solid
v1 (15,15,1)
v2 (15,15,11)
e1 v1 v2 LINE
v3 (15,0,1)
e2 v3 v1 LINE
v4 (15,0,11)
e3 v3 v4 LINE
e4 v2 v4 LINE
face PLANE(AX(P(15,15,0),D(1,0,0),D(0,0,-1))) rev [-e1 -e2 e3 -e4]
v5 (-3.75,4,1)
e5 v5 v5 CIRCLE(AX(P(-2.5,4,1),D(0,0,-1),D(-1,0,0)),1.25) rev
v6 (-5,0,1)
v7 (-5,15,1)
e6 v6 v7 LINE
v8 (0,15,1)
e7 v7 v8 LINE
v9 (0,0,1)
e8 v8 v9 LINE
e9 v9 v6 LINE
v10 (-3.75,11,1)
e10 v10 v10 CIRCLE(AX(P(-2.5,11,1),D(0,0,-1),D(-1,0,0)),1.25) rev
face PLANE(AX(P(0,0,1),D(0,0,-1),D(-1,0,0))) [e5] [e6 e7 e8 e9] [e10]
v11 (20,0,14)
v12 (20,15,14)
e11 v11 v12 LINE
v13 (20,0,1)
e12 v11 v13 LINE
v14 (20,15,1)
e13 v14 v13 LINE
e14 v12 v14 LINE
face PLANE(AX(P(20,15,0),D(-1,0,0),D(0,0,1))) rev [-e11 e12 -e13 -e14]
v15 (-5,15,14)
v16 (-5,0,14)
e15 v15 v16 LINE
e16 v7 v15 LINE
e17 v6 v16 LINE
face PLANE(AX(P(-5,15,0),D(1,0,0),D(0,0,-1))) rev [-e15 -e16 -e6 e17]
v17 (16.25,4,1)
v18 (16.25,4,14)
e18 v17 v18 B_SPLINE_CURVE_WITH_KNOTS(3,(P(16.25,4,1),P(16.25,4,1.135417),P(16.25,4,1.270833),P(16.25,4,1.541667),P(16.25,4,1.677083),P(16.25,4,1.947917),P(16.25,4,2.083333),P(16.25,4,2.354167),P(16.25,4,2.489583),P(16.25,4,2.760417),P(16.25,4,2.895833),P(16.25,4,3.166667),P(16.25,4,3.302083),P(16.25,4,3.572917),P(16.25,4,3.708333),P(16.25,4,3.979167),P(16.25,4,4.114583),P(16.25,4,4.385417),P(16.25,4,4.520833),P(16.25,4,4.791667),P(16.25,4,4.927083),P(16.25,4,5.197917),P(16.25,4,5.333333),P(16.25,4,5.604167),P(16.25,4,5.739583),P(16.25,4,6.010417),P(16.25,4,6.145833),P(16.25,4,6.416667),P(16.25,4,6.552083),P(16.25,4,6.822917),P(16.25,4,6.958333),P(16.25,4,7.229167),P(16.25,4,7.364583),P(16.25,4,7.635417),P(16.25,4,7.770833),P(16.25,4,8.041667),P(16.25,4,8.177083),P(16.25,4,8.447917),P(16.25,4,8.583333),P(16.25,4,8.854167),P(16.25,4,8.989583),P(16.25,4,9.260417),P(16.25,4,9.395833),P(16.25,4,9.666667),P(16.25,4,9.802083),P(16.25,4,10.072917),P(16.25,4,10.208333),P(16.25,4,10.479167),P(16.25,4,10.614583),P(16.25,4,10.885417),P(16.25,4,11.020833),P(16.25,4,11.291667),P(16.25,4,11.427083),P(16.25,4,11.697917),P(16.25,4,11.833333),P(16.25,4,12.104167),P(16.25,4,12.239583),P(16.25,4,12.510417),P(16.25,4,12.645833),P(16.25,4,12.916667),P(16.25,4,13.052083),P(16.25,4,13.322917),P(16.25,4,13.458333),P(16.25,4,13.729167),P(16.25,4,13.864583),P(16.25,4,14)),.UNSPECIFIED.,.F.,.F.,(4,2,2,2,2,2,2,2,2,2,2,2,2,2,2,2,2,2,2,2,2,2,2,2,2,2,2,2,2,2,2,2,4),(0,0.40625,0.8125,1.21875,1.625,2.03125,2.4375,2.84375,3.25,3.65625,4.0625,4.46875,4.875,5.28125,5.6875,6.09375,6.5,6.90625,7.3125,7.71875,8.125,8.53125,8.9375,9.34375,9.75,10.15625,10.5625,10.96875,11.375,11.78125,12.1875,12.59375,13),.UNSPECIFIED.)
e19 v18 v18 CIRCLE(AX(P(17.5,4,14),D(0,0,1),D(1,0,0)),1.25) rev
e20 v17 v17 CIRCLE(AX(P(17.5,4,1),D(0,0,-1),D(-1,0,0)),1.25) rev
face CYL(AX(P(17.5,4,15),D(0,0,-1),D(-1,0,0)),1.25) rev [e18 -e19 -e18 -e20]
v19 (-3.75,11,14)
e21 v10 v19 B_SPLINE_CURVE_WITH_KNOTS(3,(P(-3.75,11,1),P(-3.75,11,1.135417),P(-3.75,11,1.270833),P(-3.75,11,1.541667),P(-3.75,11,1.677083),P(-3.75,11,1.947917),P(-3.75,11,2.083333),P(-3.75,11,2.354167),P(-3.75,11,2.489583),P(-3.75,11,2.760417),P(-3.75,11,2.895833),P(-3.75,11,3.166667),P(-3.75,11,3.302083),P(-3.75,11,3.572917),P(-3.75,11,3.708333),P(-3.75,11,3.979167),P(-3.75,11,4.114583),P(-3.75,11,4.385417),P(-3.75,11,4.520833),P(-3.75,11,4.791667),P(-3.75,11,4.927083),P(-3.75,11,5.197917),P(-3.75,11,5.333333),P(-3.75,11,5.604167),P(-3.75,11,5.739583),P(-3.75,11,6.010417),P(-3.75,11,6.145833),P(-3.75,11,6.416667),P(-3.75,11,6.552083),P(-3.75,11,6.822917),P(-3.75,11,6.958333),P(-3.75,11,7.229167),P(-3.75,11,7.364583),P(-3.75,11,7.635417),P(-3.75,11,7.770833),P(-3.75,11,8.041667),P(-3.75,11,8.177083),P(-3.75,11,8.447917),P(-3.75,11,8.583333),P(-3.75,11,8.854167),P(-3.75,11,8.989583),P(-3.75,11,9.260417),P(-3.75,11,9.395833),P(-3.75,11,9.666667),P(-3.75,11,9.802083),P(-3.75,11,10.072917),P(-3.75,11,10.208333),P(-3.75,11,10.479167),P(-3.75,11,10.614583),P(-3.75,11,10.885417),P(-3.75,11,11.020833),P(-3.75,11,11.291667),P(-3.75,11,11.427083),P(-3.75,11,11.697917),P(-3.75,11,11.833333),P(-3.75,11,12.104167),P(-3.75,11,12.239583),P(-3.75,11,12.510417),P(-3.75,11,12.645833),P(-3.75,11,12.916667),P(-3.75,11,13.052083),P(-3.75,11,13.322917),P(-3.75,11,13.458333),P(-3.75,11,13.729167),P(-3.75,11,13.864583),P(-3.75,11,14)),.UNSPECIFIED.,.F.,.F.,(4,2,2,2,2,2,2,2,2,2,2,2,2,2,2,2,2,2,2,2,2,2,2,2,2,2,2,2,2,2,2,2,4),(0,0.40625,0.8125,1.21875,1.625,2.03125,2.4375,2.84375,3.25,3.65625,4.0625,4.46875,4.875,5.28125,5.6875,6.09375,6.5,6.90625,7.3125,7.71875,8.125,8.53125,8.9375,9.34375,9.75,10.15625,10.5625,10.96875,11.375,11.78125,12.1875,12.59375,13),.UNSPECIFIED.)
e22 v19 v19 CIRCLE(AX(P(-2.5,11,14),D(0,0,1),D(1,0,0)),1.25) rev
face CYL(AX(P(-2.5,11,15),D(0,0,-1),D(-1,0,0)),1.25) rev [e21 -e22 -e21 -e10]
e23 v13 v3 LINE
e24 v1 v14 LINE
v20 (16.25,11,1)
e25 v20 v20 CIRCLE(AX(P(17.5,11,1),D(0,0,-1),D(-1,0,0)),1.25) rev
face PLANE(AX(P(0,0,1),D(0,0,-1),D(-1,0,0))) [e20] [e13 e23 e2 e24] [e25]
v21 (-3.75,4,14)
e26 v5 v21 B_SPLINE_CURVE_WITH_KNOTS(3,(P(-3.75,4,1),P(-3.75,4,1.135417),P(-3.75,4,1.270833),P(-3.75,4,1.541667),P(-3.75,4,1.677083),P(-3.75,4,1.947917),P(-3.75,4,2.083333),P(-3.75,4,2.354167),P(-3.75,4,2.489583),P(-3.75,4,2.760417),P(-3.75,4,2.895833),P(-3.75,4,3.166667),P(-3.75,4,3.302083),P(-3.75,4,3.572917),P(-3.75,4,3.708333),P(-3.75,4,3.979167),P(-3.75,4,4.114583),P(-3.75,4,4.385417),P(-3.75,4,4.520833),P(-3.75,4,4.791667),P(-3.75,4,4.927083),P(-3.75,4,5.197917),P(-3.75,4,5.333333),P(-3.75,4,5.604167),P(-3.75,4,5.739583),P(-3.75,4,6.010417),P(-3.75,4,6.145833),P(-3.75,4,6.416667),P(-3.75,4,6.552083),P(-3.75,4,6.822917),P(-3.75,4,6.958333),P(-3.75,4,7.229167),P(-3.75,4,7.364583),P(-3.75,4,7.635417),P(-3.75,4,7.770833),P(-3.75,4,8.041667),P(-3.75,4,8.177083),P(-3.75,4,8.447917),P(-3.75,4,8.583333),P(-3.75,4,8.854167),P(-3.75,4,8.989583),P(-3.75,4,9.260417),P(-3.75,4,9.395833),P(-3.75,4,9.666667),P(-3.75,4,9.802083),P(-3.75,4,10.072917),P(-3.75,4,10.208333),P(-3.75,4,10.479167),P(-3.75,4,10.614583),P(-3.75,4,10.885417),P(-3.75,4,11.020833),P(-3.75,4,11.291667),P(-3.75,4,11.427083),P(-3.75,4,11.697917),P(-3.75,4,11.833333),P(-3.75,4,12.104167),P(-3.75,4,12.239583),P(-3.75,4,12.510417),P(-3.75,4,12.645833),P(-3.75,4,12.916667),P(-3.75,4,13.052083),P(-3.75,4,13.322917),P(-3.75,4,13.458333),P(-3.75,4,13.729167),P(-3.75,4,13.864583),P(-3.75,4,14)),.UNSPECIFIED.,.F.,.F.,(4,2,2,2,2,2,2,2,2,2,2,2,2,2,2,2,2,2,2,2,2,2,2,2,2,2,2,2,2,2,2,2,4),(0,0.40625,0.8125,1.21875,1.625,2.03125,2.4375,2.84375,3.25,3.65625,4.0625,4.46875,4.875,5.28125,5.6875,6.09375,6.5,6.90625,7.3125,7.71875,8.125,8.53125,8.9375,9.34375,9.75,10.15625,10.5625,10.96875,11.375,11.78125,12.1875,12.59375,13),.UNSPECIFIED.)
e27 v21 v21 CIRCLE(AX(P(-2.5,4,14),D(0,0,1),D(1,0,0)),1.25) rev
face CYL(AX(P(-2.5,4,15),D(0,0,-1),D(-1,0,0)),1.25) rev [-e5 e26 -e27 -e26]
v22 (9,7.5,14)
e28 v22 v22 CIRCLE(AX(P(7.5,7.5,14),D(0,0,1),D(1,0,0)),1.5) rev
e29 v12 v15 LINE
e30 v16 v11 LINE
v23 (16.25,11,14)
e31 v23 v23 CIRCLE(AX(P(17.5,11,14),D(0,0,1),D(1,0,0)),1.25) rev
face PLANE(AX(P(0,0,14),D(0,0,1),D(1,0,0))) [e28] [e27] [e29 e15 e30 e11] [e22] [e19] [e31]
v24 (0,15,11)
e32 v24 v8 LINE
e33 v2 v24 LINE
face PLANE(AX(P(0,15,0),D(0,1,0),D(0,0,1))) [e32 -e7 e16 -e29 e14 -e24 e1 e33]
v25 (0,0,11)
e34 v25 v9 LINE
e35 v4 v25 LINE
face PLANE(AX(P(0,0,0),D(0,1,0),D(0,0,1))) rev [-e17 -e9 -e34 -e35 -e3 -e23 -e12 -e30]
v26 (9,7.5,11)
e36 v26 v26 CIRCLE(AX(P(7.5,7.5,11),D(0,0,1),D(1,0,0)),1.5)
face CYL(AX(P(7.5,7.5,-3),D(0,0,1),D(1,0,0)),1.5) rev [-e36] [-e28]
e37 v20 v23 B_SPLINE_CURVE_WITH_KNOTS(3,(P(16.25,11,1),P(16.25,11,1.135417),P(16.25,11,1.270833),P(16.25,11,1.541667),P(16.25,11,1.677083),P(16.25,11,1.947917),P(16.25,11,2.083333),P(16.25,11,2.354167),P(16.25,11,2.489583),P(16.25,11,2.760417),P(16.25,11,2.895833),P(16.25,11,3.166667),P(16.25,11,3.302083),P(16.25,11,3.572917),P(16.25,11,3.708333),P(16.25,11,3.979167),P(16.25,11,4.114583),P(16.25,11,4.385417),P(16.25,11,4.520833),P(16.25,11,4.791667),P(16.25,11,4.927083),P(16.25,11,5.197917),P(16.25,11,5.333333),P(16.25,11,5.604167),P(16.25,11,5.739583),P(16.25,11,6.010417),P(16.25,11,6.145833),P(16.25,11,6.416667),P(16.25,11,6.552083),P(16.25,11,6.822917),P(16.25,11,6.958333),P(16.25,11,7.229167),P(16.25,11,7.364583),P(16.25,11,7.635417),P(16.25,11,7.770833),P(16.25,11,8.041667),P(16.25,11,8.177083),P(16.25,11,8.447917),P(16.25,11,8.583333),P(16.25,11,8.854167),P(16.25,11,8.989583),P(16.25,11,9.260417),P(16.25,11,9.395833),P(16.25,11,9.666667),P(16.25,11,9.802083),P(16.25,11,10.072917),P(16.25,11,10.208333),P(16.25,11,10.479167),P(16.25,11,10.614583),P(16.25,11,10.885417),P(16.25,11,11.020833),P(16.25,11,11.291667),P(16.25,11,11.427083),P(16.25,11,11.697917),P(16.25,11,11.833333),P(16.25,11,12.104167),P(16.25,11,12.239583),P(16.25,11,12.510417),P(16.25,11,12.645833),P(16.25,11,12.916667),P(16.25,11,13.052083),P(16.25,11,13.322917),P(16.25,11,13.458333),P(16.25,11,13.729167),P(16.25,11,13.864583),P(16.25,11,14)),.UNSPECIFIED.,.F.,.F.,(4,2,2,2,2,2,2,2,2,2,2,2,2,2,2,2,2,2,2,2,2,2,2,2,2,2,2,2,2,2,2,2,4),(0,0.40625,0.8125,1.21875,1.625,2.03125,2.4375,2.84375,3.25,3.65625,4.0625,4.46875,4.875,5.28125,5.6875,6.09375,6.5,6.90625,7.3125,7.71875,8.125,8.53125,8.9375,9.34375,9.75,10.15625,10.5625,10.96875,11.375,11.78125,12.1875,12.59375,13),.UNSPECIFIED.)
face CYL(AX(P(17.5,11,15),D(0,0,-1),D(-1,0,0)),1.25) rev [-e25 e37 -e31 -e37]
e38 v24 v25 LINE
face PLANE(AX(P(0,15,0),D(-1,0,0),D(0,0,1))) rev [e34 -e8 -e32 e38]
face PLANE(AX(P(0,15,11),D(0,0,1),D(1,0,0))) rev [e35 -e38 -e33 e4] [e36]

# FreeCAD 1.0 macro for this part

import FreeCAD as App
import Part
import Sketcher
from FreeCAD import Vector

doc = App.newDocument("Part")
body = doc.addObject("PartDesign::Body", "Body")

# Sketch on XZ plane
sketch1 = doc.addObject("Sketcher::SketchObject", "Sketch")
body.addObject(sketch1)
sketch1.AttachmentSupport = (doc.XZ_Plane, [""])
sketch1.MapMode = "FlatFace"
sketch1.addGeometry(Part.LineSegment(Vector(0, 0, 0), Vector(-5, 0, 0)), False)
sketch1.addGeometry(Part.LineSegment(Vector(-5, 0, 0), Vector(-5, 15, 0)), False)
sketch1.addGeometry(Part.LineSegment(Vector(-5, 15, 0), Vector(20, 15, 0)), False)
sketch1.addGeometry(Part.LineSegment(Vector(20, 15, 0), Vector(20, 0, 0)), False)
sketch1.addGeometry(Part.LineSegment(Vector(20, 0, 0), Vector(15, 0, 0)), False)
sketch1.addGeometry(Part.LineSegment(Vector(15, 0, 0), Vector(15, 11, 0)), False)
sketch1.addGeometry(Part.LineSegment(Vector(15, 11, 0), Vector(0, 11, 0)), False)
sketch1.addGeometry(Part.LineSegment(Vector(0, 11, 0), Vector(0, 0, 0)), False)
sketch1.addConstraint(Sketcher.Constraint("Coincident", 0, 2, 1, 1))
sketch1.addConstraint(Sketcher.Constraint("Coincident", 1, 2, 2, 1))
sketch1.addConstraint(Sketcher.Constraint("Coincident", 2, 2, 3, 1))
sketch1.addConstraint(Sketcher.Constraint("Coincident", 3, 2, 4, 1))
sketch1.addConstraint(Sketcher.Constraint("Coincident", 4, 2, 5, 1))
sketch1.addConstraint(Sketcher.Constraint("Coincident", 5, 2, 6, 1))
sketch1.addConstraint(Sketcher.Constraint("Coincident", 6, 2, 7, 1))
sketch1.addConstraint(Sketcher.Constraint("Coincident", 7, 2, 0, 1))
sketch1.addConstraint(Sketcher.Constraint("Horizontal", 0))
sketch1.addConstraint(Sketcher.Constraint("Vertical", 1))
sketch1.addConstraint(Sketcher.Constraint("Horizontal", 2))
sketch1.addConstraint(Sketcher.Constraint("Vertical", 3))
sketch1.addConstraint(Sketcher.Constraint("Horizontal", 4))
sketch1.addConstraint(Sketcher.Constraint("Vertical", 5))
sketch1.addConstraint(Sketcher.Constraint("Horizontal", 6))
sketch1.addConstraint(Sketcher.Constraint("Vertical", 7))
sketch1.addConstraint(Sketcher.Constraint("Coincident", 7, 2, -1, 1))
sketch1.addConstraint(Sketcher.Constraint("PointOnObject", 3, 2, -1))
sketch1.addConstraint(Sketcher.Constraint("Equal", 0, 4))
sketch1.addConstraint(Sketcher.Constraint("Equal", 6, 1))
sketch1.addConstraint(Sketcher.Constraint("DistanceX", 0, 2, 0, 1, 5.0))
sketch1.addConstraint(Sketcher.Constraint("DistanceX", 2, 1, 2, 2, 25.0))
sketch1.addConstraint(Sketcher.Constraint("DistanceY", 5, 1, 5, 2, 11.0))
pad1 = doc.addObject("PartDesign::Pad", "Pad")
body.addObject(pad1)
pad1.Profile = sketch1
pad1.Length = 15
pad1.Reversed = True

# Sketch on XY plane
sketch2 = doc.addObject("Sketcher::SketchObject", "Sketch001")
body.addObject(sketch2)
sketch2.AttachmentSupport = (doc.XY_Plane, [""])
sketch2.MapMode = "FlatFace"
sketch2.addGeometry(Part.Circle(Vector(17.5, 4, 0), Vector(0, 0, 1), 1.25), False)
sketch2.addGeometry(Part.Circle(Vector(17.5, 11, 0), Vector(0, 0, 1), 1.25), False)
sketch2.addConstraint(Sketcher.Constraint("Equal", 0, 1))
sketch2.addConstraint(Sketcher.Constraint("Vertical", 0, 3, 1, 3))
sketch2.addConstraint(Sketcher.Constraint("Diameter", 0, 2.5))
sketch2.addConstraint(Sketcher.Constraint("DistanceY", -1, 1, 0, 3, 4.0))
sketch2.addConstraint(Sketcher.Constraint("DistanceY", -1, 1, 1, 3, 11.0))
sketch2.addConstraint(Sketcher.Constraint("DistanceX", -1, 1, 0, 3, 17.5))
pocket1 = doc.addObject("PartDesign::Pocket", "Pocket")
body.addObject(pocket1)
pocket1.Profile = sketch2
pocket1.Type = "ThroughAll"
pocket1.Reversed = True

# Sketch on XY plane
sketch3 = doc.addObject("Sketcher::SketchObject", "Sketch002")
body.addObject(sketch3)
sketch3.AttachmentSupport = (doc.XY_Plane, [""])
sketch3.MapMode = "FlatFace"
sketch3.addGeometry(Part.Circle(Vector(-2.5, 4, 0), Vector(0, 0, 1), 1.25), False)
sketch3.addGeometry(Part.Circle(Vector(-2.5, 11, 0), Vector(0, 0, 1), 1.25), False)
sketch3.addConstraint(Sketcher.Constraint("Equal", 0, 1))
sketch3.addConstraint(Sketcher.Constraint("Vertical", 0, 3, 1, 3))
sketch3.addConstraint(Sketcher.Constraint("Diameter", 0, 2.5))
sketch3.addConstraint(Sketcher.Constraint("DistanceY", -1, 1, 0, 3, 4.0))
sketch3.addConstraint(Sketcher.Constraint("DistanceY", -1, 1, 1, 3, 11.0))
sketch3.addConstraint(Sketcher.Constraint("DistanceX", 0, 3, -1, 1, 2.5))
pocket2 = doc.addObject("PartDesign::Pocket", "Pocket001")
body.addObject(pocket2)
pocket2.Profile = sketch3
pocket2.Type = "ThroughAll"
pocket2.Reversed = True

# Sketch on XY plane
sketch4 = doc.addObject("Sketcher::SketchObject", "Sketch003")
body.addObject(sketch4)
sketch4.AttachmentSupport = (doc.XY_Plane, [""])
sketch4.MapMode = "FlatFace"
sketch4.AttachmentOffset = App.Placement(Vector(0, 0, 15), App.Rotation())
sketch4.addGeometry(Part.Circle(Vector(7.5, 7.5, 0), Vector(0, 0, 1), 1.5), False)
sketch4.addConstraint(Sketcher.Constraint("Diameter", 0, 3.0))
sketch4.addConstraint(Sketcher.Constraint("DistanceX", -1, 1, 0, 3, 7.5))
sketch4.addConstraint(Sketcher.Constraint("DistanceY", -1, 1, 0, 3, 7.5))
pocket3 = doc.addObject("PartDesign::Pocket", "Pocket002")
body.addObject(pocket3)
pocket3.Profile = sketch4
pocket3.Length = 18

# Sketch on XY plane
sketch5 = doc.addObject("Sketcher::SketchObject", "Sketch004")
body.addObject(sketch5)
sketch5.AttachmentSupport = (doc.XY_Plane, [""])
sketch5.MapMode = "FlatFace"
sketch5.addGeometry(Part.LineSegment(Vector(20, 15, 0), Vector(20, 0, 0)), False)
sketch5.addGeometry(Part.LineSegment(Vector(20, 0, 0), Vector(-5, 0, 0)), False)
sketch5.addGeometry(Part.LineSegment(Vector(-5, 0, 0), Vector(-5, 15, 0)), False)
sketch5.addGeometry(Part.LineSegment(Vector(-5, 15, 0), Vector(20, 15, 0)), False)
sketch5.addConstraint(Sketcher.Constraint("Coincident", 0, 2, 1, 1))
sketch5.addConstraint(Sketcher.Constraint("Coincident", 1, 2, 2, 1))
sketch5.addConstraint(Sketcher.Constraint("Coincident", 2, 2, 3, 1))
sketch5.addConstraint(Sketcher.Constraint("Coincident", 3, 2, 0, 1))
sketch5.addConstraint(Sketcher.Constraint("Vertical", 0))
sketch5.addConstraint(Sketcher.Constraint("Horizontal", 1))
sketch5.addConstraint(Sketcher.Constraint("Vertical", 2))
sketch5.addConstraint(Sketcher.Constraint("Horizontal", 3))
sketch5.addConstraint(Sketcher.Constraint("PointOnObject", 0, 2, -1))
sketch5.addConstraint(Sketcher.Constraint("DistanceX", 1, 2, 1, 1, 25.0))
sketch5.addConstraint(Sketcher.Constraint("DistanceY", 0, 2, 0, 1, 15.0))
sketch5.addConstraint(Sketcher.Constraint("DistanceX", -1, 1, 0, 2, 20.0))
pocket4 = doc.addObject("PartDesign::Pocket", "Pocket003")
body.addObject(pocket4)
pocket4.Profile = sketch5
pocket4.Length = 1
pocket4.Reversed = True

# Sketch on XY plane
sketch6 = doc.addObject("Sketcher::SketchObject", "Sketch005")
body.addObject(sketch6)
sketch6.AttachmentSupport = (doc.XY_Plane, [""])
sketch6.MapMode = "FlatFace"
sketch6.AttachmentOffset = App.Placement(Vector(0, 0, 15), App.Rotation())
sketch6.addGeometry(Part.LineSegment(Vector(-5, 15, 0), Vector(-5, 0, 0)), False)
sketch6.addGeometry(Part.LineSegment(Vector(-5, 0, 0), Vector(20, 0, 0)), False)
sketch6.addGeometry(Part.LineSegment(Vector(20, 0, 0), Vector(20, 15, 0)), False)
sketch6.addGeometry(Part.LineSegment(Vector(20, 15, 0), Vector(-5, 15, 0)), False)
sketch6.addConstraint(Sketcher.Constraint("Coincident", 0, 2, 1, 1))
sketch6.addConstraint(Sketcher.Constraint("Coincident", 1, 2, 2, 1))
sketch6.addConstraint(Sketcher.Constraint("Coincident", 2, 2, 3, 1))
sketch6.addConstraint(Sketcher.Constraint("Coincident", 3, 2, 0, 1))
sketch6.addConstraint(Sketcher.Constraint("Vertical", 0))
sketch6.addConstraint(Sketcher.Constraint("Horizontal", 1))
sketch6.addConstraint(Sketcher.Constraint("Vertical", 2))
sketch6.addConstraint(Sketcher.Constraint("Horizontal", 3))
sketch6.addConstraint(Sketcher.Constraint("PointOnObject", 0, 2, -1))
sketch6.addConstraint(Sketcher.Constraint("DistanceX", 1, 1, 1, 2, 25.0))
sketch6.addConstraint(Sketcher.Constraint("DistanceY", 0, 2, 0, 1, 15.0))
sketch6.addConstraint(Sketcher.Constraint("DistanceX", 0, 2, -1, 1, 5.0))
pocket5 = doc.addObject("PartDesign::Pocket", "Pocket004")
body.addObject(pocket5)
pocket5.Profile = sketch6
pocket5.Length = 1

doc.recompute()
